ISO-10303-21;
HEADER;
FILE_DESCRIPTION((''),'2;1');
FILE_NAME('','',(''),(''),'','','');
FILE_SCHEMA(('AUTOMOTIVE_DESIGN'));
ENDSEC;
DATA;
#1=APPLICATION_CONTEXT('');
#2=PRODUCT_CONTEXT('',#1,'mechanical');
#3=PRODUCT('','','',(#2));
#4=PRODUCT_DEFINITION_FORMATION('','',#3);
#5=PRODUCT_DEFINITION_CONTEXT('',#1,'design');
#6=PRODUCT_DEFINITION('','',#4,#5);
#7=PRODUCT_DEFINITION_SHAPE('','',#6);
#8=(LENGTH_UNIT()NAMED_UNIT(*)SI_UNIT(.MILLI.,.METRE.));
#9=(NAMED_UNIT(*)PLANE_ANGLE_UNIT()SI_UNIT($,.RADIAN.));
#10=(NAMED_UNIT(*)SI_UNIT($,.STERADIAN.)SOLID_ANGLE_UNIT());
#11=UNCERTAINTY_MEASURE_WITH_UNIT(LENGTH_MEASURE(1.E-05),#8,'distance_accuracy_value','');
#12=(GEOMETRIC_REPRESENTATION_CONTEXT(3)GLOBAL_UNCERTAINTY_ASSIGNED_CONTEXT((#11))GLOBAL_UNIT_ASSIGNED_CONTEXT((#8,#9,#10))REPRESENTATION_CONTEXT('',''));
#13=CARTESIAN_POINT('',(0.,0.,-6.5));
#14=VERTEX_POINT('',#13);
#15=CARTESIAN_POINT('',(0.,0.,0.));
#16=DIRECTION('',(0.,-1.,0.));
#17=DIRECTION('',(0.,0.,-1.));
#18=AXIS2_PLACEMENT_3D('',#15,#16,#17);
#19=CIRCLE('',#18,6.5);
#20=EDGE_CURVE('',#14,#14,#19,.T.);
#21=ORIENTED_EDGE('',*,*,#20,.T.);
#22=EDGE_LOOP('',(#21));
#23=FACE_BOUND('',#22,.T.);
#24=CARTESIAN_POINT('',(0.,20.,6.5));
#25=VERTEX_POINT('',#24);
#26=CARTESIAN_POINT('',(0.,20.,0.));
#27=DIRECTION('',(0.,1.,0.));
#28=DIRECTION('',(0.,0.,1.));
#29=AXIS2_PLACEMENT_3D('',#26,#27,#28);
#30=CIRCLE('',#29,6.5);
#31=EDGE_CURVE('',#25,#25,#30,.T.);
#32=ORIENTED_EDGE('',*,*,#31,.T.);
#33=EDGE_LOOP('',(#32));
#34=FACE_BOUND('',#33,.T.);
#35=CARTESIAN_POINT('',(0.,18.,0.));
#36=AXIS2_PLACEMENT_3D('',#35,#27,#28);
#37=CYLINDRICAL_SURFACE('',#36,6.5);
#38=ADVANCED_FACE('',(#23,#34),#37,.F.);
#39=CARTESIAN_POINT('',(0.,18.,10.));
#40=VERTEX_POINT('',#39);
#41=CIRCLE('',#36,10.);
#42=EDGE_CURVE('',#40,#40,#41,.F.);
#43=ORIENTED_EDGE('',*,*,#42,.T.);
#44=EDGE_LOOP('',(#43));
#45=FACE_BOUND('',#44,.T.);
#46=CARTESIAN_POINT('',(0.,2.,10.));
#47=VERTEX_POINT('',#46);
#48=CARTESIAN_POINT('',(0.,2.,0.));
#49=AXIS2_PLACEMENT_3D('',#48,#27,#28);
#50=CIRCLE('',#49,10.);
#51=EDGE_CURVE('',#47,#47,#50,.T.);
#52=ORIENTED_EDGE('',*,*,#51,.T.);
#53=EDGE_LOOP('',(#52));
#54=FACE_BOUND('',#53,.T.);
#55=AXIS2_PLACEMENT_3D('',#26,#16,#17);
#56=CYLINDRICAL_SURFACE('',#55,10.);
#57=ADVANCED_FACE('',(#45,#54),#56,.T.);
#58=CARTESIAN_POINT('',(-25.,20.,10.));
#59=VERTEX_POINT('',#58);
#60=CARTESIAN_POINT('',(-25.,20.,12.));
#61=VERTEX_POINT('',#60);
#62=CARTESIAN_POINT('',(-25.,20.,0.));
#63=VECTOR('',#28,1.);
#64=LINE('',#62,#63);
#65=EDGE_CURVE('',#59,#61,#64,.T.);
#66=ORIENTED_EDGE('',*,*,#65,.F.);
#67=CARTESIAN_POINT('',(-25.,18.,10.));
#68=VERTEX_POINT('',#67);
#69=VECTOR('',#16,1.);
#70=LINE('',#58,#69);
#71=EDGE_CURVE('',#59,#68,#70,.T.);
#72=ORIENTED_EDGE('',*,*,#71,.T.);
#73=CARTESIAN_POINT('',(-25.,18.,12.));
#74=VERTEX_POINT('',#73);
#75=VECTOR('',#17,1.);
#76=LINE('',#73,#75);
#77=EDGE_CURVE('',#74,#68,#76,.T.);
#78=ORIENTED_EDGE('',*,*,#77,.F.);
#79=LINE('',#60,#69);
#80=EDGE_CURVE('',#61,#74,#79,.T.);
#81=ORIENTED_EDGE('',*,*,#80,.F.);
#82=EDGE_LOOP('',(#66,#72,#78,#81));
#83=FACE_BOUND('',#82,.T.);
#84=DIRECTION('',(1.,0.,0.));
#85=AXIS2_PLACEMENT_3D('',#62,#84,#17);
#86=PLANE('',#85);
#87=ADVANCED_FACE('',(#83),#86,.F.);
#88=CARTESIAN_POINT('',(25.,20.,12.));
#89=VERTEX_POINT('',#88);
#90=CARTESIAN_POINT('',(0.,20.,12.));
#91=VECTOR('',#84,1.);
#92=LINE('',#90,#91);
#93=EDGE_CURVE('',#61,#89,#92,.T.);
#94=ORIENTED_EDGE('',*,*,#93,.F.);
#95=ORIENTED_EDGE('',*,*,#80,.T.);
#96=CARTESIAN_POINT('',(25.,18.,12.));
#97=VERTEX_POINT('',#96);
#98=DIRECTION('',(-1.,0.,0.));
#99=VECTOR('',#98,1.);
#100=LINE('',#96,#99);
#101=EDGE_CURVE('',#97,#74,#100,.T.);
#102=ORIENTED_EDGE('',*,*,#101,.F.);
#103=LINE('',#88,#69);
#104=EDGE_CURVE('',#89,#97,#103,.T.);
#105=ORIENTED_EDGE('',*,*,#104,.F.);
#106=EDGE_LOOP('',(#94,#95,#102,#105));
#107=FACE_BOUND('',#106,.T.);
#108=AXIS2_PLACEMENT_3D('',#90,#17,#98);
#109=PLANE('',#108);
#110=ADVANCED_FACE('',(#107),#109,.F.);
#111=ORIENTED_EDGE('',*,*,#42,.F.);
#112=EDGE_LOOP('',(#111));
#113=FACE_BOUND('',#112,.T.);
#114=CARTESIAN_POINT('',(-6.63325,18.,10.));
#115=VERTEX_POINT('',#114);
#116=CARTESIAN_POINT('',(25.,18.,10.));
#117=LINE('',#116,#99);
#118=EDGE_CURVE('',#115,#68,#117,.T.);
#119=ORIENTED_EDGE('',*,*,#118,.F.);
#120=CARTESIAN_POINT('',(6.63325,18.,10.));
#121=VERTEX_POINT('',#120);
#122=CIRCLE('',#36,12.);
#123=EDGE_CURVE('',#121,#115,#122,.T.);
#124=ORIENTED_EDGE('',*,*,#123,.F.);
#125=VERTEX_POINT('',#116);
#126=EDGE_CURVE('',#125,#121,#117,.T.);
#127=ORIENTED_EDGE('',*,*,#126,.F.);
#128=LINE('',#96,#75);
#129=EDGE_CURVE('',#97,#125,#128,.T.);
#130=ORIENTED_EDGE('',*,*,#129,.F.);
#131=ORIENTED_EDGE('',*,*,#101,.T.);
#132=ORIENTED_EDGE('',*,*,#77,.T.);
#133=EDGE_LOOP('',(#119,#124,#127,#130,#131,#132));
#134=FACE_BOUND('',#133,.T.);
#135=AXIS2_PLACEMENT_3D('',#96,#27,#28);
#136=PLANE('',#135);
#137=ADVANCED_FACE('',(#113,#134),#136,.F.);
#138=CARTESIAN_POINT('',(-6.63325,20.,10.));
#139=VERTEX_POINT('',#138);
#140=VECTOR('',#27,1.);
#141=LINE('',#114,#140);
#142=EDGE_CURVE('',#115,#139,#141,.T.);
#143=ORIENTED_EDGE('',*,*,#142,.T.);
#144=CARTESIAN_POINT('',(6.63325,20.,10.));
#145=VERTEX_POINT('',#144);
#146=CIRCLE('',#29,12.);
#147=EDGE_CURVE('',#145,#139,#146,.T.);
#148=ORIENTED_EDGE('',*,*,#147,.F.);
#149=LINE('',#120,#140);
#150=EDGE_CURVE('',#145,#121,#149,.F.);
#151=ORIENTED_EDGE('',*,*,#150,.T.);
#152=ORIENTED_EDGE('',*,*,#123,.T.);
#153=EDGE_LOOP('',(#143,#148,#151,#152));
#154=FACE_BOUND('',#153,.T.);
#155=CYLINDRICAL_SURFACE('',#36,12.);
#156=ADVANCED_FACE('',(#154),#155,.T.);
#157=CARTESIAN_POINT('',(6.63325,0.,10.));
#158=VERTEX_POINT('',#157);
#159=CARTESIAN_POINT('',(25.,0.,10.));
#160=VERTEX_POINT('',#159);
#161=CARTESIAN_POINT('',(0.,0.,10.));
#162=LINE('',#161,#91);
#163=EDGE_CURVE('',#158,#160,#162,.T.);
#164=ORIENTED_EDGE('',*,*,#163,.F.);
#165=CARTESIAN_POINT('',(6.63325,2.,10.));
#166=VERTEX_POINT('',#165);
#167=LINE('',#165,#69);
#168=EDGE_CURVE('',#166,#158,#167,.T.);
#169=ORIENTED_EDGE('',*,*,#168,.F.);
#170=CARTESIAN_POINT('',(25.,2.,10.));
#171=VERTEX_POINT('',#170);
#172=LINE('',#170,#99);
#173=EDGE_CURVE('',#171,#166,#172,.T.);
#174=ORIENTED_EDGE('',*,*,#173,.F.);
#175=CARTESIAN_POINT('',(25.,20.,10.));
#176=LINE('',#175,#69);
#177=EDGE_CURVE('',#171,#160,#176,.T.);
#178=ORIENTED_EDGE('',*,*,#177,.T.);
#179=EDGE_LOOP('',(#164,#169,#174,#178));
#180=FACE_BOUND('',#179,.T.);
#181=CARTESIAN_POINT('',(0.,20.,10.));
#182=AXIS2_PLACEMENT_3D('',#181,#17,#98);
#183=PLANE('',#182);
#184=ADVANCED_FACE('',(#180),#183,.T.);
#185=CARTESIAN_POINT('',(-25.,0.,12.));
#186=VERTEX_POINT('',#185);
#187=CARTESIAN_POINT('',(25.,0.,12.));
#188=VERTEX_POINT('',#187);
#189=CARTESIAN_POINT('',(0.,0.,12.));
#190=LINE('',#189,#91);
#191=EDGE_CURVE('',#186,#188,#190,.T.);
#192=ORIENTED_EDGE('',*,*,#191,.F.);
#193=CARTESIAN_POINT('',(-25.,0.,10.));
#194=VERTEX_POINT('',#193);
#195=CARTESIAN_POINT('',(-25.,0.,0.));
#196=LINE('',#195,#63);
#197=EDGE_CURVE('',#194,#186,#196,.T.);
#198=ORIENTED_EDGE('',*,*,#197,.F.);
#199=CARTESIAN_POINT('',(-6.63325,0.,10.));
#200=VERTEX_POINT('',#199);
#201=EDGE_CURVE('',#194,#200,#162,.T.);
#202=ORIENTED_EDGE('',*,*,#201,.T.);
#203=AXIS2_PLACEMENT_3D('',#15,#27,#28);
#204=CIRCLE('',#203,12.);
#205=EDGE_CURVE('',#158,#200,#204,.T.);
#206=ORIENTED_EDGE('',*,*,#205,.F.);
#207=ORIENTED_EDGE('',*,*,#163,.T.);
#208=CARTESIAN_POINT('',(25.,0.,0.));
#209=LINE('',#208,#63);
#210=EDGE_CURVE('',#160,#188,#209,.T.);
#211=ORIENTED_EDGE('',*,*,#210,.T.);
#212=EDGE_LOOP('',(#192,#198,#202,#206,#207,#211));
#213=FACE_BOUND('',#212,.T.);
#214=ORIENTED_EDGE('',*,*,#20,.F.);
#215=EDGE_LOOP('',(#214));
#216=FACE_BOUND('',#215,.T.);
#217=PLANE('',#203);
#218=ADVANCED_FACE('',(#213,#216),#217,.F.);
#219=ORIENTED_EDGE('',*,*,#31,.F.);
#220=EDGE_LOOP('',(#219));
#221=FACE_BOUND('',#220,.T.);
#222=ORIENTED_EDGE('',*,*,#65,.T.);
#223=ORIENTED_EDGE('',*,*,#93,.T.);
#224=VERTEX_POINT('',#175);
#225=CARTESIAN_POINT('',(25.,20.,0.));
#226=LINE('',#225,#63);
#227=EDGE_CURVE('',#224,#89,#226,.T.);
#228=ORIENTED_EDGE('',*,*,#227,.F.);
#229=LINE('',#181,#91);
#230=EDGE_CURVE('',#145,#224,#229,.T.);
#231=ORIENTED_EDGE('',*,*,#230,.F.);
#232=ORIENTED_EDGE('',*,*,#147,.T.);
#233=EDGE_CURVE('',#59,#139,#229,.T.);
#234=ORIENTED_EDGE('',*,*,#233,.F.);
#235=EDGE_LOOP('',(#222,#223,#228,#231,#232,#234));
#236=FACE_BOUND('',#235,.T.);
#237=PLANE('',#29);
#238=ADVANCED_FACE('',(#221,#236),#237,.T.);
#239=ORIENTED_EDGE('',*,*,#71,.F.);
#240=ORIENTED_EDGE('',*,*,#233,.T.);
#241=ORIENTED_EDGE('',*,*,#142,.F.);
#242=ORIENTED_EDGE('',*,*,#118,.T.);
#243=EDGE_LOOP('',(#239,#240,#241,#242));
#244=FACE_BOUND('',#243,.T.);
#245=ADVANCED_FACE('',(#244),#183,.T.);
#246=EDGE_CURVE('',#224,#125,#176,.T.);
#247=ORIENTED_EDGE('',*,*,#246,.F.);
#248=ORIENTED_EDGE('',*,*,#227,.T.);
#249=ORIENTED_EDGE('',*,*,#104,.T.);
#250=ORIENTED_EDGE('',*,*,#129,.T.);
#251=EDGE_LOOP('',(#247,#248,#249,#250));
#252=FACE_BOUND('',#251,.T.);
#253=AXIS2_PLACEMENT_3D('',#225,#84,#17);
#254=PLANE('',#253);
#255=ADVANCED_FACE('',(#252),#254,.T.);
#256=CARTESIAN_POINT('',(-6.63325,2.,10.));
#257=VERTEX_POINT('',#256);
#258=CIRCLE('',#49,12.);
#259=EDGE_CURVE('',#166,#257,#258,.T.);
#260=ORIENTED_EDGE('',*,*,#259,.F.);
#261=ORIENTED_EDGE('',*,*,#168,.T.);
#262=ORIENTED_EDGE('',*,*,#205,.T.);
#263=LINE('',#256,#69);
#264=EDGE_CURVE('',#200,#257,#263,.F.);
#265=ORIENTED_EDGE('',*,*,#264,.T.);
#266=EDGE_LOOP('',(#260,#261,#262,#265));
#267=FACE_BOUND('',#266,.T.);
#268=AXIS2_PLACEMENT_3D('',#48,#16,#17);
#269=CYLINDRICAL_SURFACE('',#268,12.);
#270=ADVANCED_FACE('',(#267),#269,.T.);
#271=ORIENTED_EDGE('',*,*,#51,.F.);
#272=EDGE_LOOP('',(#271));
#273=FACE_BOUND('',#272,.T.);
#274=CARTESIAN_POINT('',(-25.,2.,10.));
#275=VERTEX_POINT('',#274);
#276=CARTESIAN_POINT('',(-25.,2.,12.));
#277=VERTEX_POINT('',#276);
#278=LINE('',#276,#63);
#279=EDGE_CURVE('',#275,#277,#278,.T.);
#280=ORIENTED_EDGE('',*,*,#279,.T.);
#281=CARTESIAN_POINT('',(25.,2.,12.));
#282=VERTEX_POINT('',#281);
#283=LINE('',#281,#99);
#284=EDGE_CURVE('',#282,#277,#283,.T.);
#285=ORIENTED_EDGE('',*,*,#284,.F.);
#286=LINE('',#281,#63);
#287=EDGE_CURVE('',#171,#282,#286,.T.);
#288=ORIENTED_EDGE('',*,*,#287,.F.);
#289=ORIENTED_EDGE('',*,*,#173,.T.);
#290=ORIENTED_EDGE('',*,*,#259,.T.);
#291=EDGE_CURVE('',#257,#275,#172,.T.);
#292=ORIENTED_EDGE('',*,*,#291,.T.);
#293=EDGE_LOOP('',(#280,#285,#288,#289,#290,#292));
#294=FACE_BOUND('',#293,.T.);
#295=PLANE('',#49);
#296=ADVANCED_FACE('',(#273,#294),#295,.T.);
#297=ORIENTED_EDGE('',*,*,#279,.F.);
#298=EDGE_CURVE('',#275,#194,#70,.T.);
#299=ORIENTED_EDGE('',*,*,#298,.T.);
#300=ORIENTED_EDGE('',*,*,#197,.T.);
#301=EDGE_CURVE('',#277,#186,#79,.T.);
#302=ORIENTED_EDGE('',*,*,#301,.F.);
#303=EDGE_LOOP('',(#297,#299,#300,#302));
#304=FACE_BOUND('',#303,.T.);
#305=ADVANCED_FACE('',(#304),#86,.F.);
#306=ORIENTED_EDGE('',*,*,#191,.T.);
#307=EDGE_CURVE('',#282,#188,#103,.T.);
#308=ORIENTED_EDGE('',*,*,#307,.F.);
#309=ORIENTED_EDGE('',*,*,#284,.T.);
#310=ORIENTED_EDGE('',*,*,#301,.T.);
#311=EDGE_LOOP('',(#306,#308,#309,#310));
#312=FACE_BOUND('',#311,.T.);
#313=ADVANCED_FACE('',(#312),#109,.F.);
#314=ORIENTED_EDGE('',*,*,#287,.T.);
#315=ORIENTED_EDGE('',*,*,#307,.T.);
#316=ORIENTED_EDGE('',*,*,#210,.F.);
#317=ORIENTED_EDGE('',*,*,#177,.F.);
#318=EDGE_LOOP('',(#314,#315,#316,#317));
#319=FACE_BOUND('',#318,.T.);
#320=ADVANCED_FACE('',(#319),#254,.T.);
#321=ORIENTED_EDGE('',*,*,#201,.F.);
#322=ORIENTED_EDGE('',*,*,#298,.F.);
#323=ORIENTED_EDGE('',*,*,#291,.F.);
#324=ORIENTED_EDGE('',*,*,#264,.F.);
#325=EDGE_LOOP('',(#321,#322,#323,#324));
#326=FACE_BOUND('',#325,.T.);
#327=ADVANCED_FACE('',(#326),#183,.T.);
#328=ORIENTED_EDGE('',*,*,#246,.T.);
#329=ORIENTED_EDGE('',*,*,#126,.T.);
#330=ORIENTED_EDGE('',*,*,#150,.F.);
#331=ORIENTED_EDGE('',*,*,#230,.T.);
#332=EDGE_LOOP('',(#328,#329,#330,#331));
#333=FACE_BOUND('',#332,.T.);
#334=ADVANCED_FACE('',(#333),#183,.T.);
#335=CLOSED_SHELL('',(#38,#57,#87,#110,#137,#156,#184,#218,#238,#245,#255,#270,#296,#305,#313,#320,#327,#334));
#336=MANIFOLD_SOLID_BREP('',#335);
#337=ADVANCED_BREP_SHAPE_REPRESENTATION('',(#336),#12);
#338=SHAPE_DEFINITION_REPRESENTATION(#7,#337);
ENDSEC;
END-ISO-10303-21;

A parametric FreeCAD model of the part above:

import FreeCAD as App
import Part
import Sketcher

V = App.Vector
Q = App.Units.Quantity


def add_polygon(sketch, points):
    """Adds a closed chain of lines whose ends are joined by coincident constraints."""
    first, n = sketch.GeometryCount, len(points)
    for a, b in zip(points, points[1:] + points[:1]):
        sketch.addGeometry(Part.LineSegment(App.Vector(*a, 0), App.Vector(*b, 0)), False)
    for i in range(n):
        sketch.addConstraint(Sketcher.Constraint("Coincident", first + i, 2, first + (i + 1) % n, 1))

doc = App.newDocument("Part")
body = doc.addObject("PartDesign::Body", "Body")

sketch1 = body.newObject("Sketcher::SketchObject", "Sketch")
sketch1.AttachmentSupport = (doc.getObject("XZ_Plane"), [""])
sketch1.MapMode = "FlatFace"
sketch1.addGeometry([
    Part.Circle(V(0, 0, 0), V(0, 0, 1), 10),
    Part.Circle(V(0, 0, 0), V(0, 0, 1), 6.5),
], False)
sketch1.addConstraint([
    Sketcher.Constraint("Coincident", 0, 3, -1, 1),
    Sketcher.Constraint("Coincident", 1, 3, -1, 1),
    Sketcher.Constraint("Diameter", 0, Q("20 mm")),
    Sketcher.Constraint("Diameter", 1, Q("13 mm")),
])
pad1 = body.newObject("PartDesign::Pad", "Pad")
pad1.Profile = sketch1
pad1.Length = 20
pad1.Reversed = True
body2 = doc.addObject("PartDesign::Body", "Body001")
body2.AllowCompound = True

sketch2 = body2.newObject("Sketcher::SketchObject", "Sketch001")
sketch2.AttachmentSupport = (doc.getObject("XZ_Plane001"), [""])
sketch2.MapMode = "FlatFace"
add_polygon(sketch2, [(-25, 10), (-25, 12), (25, 12), (25, 10)])
sketch2.addConstraint([
    Sketcher.Constraint("Vertical", 0),
    Sketcher.Constraint("Horizontal", 1),
    Sketcher.Constraint("Vertical", 2),
    Sketcher.Constraint("Horizontal", 3),
    Sketcher.Constraint("DistanceX", 1, 1, 1, 2, Q("50 mm")),
    Sketcher.Constraint("DistanceY", 0, 1, 0, 2, Q("2 mm")),
    Sketcher.Constraint("DistanceX", 0, 2, -1, 1, Q("25 mm")),
    Sketcher.Constraint("DistanceY", -1, 1, 0, 2, Q("12 mm")),
])
pad2 = body2.newObject("PartDesign::Pad", "Pad001")
pad2.Profile = sketch2
pad2.Length = 20
pad2.Reversed = True

sketch3 = body2.newObject("Sketcher::SketchObject", "Sketch002")
sketch3.AttachmentSupport = (doc.getObject("YZ_Plane001"), [""])
sketch3.MapMode = "FlatFace"
sketch3.AttachmentOffset = App.Placement(V(0, 0, -25), App.Rotation())
add_polygon(sketch3, [(18, 10), (2, 10), (2, 12), (18, 12)])
sketch3.addConstraint([
    Sketcher.Constraint("Horizontal", 0),
    Sketcher.Constraint("Vertical", 1),
    Sketcher.Constraint("Horizontal", 2),
    Sketcher.Constraint("Vertical", 3),
    Sketcher.Constraint("DistanceX", 0, 2, 0, 1, Q("16 mm")),
    Sketcher.Constraint("DistanceY", 1, 1, 1, 2, Q("2 mm")),
    Sketcher.Constraint("DistanceX", -1, 1, 0, 2, Q("2 mm")),
    Sketcher.Constraint("DistanceY", -1, 1, 0, 2, Q("10 mm")),
])
pocket1 = body2.newObject("PartDesign::Pocket", "Pocket")
pocket1.Profile = sketch3
pocket1.Length = 50
pocket1.Reversed = True
body.AllowCompound = True
doc.recompute()

boolean = body.newObject("PartDesign::Boolean", "Boolean")
boolean.Type = "Fuse"
boolean.addObjects([body2])

sketch4 = body.newObject("Sketcher::SketchObject", "Sketch003")
sketch4.AttachmentSupport = (doc.getObject("XZ_Plane"), [""])
sketch4.MapMode = "FlatFace"
sketch4.addGeometry(Part.Circle(V(0, 0, 0), V(0, 0, 1), 12), False)
sketch4.addConstraint([
    Sketcher.Constraint("Coincident", 0, 3, -1, 1),
    Sketcher.Constraint("Diameter", 0, Q("24 mm")),
])
pad3 = body.newObject("PartDesign::Pad", "Pad002")
pad3.Profile = sketch4
pad3.Length = 2
pad3.Reversed = True

sketch5 = body.newObject("Sketcher::SketchObject", "Sketch004")
sketch5.AttachmentSupport = (doc.getObject("XZ_Plane"), [""])
sketch5.MapMode = "FlatFace"
sketch5.AttachmentOffset = App.Placement(V(0, 0, -20), App.Rotation())
sketch5.addGeometry([
    Part.Circle(V(0, 0, 0), V(0, 0, 1), 12),
    Part.Circle(V(0, 0, 0), V(0, 0, 1), 6.5),
], False)
sketch5.addConstraint([
    Sketcher.Constraint("Coincident", 0, 3, -1, 1),
    Sketcher.Constraint("Coincident", 1, 3, -1, 1),
    Sketcher.Constraint("Diameter", 0, Q("24 mm")),
    Sketcher.Constraint("Diameter", 1, Q("13 mm")),
])
pad4 = body.newObject("PartDesign::Pad", "Pad003")
pad4.Profile = sketch5
pad4.Length = 2

sketch6 = body.newObject("Sketcher::SketchObject", "Sketch005")
sketch6.AttachmentSupport = (doc.getObject("XZ_Plane"), [""])
sketch6.MapMode = "FlatFace"
sketch6.addGeometry(Part.Circle(V(0, 0, 0), V(0, 0, 1), 6.5), False)
sketch6.addConstraint([
    Sketcher.Constraint("Coincident", 0, 3, -1, 1),
    Sketcher.Constraint("Diameter", 0, Q("13 mm")),
])
pocket2 = body.newObject("PartDesign::Pocket", "Pocket001")
pocket2.Profile = sketch6
pocket2.Length = 2

doc.recompute()
